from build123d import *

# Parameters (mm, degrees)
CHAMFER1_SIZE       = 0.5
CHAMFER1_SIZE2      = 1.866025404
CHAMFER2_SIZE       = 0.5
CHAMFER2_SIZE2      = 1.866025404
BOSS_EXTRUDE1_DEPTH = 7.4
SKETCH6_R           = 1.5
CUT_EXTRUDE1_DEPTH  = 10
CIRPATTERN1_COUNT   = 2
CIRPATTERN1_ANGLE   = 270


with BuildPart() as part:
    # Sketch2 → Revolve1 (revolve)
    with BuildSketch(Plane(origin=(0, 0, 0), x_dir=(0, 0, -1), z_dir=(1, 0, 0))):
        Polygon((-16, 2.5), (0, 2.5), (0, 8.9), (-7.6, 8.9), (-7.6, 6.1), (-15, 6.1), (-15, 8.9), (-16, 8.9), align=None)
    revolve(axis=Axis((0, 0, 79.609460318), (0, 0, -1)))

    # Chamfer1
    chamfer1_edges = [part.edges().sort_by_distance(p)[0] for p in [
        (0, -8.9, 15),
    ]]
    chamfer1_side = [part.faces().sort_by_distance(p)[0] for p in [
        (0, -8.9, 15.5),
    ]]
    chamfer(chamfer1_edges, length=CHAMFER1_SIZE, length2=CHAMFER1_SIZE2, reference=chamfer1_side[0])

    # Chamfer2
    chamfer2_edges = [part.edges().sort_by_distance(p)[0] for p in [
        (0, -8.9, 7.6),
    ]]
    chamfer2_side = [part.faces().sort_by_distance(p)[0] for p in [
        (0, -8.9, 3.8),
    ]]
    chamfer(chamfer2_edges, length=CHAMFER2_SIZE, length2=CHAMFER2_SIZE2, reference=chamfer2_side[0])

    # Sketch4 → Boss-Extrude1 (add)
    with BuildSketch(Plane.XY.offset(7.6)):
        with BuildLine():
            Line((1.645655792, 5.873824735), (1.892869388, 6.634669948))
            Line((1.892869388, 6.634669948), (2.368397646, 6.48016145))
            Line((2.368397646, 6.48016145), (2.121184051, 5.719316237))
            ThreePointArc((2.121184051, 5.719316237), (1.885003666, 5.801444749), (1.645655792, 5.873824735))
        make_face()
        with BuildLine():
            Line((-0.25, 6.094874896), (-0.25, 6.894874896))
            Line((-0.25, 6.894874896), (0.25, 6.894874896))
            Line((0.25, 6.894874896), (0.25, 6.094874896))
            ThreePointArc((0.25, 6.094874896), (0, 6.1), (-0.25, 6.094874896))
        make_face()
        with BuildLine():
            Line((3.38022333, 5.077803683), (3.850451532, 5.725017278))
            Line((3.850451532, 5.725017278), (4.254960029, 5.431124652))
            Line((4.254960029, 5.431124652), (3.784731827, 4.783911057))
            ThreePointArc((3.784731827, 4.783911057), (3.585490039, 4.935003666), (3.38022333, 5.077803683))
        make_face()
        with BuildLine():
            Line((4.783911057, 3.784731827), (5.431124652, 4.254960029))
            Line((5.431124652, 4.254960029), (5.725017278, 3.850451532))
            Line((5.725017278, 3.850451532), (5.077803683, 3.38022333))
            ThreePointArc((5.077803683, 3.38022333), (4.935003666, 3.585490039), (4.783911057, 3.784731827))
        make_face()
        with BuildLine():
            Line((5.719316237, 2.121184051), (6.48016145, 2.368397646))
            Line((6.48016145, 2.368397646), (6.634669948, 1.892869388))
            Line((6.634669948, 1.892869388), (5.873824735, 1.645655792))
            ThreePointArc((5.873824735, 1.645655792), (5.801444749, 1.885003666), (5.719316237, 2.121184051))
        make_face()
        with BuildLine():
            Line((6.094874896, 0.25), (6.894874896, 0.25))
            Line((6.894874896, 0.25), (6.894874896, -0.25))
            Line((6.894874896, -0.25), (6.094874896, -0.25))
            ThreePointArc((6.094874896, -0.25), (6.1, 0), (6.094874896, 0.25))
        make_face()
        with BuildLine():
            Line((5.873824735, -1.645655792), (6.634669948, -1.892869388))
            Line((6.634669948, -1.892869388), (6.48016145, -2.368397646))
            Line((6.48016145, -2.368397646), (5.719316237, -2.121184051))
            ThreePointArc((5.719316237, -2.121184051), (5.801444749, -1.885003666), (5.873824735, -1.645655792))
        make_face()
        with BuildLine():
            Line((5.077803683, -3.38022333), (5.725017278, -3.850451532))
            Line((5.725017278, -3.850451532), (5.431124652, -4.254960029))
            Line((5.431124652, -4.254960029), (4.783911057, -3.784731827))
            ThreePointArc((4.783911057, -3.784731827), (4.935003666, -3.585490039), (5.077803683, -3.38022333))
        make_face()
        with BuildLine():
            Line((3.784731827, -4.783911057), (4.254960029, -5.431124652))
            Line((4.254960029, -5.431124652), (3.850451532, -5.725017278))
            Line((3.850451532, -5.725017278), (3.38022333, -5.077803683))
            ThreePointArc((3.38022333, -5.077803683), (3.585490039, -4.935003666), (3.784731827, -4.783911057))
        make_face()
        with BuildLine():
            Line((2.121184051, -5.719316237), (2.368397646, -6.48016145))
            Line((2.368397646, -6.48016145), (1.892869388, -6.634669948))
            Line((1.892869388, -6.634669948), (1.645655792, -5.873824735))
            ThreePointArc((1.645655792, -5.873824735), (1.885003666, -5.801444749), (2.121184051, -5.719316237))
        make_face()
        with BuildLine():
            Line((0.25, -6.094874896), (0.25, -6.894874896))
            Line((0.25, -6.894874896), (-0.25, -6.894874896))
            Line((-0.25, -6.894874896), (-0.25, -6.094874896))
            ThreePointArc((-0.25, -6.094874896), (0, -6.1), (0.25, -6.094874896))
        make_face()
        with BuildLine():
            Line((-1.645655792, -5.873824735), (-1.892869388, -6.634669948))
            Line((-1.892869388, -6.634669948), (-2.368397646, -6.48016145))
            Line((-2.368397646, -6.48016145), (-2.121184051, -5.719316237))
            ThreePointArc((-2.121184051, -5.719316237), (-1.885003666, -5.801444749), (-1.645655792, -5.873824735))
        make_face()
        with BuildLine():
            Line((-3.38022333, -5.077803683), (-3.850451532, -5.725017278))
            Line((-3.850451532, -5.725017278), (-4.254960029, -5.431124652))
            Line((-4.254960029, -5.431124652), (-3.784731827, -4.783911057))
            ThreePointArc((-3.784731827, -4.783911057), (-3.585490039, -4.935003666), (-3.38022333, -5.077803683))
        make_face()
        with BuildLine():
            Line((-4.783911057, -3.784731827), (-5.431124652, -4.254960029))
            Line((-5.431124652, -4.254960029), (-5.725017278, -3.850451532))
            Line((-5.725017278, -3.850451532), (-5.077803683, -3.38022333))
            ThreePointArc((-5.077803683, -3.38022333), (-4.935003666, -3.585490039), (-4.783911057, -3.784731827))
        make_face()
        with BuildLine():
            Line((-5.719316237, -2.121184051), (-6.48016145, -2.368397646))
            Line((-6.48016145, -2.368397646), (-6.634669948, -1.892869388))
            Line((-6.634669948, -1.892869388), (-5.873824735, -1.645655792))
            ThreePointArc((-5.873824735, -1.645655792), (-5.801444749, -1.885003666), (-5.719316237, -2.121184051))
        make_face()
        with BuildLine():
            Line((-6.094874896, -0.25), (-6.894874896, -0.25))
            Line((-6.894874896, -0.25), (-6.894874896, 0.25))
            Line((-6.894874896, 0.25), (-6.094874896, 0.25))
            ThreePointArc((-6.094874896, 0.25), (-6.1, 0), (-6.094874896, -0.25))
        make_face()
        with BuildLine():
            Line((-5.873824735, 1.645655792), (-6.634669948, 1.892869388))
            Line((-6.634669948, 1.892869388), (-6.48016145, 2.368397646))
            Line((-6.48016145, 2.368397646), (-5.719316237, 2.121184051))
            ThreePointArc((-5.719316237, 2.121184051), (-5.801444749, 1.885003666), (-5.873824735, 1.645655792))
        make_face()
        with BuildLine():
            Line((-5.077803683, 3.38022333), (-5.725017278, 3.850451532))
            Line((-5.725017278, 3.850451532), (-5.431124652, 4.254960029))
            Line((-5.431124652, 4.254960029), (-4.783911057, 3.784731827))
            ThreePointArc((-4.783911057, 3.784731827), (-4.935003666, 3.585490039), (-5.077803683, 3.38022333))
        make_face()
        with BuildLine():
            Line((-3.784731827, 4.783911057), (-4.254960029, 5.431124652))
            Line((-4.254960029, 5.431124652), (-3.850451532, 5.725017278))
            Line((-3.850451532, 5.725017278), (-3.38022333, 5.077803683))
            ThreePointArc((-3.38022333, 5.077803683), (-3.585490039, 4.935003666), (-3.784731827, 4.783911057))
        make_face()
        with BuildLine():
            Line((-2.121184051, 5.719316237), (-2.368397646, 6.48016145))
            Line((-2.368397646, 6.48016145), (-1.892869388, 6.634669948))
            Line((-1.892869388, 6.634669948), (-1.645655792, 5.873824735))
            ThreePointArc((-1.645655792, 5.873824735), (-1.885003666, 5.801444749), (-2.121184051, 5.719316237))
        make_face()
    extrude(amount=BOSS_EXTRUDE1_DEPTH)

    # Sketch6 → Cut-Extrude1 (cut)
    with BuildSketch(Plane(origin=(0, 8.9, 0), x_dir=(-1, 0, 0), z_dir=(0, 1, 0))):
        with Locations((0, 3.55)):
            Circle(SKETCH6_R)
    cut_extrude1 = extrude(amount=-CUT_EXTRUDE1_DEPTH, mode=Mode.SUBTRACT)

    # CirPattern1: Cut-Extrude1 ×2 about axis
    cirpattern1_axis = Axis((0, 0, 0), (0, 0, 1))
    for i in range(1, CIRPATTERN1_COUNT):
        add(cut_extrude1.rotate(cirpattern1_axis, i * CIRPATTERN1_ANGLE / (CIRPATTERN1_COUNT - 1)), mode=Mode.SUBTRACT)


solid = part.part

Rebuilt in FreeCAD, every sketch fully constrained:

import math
import FreeCAD as App
import Part
import Sketcher

V = App.Vector
Q = App.Units.Quantity


def edges_at(feature, points):
    """Names of the edges that pass closest to the given points."""
    edges = feature.Shape.Edges
    near = lambda p: min(range(len(edges)), key=lambda i: edges[i].distToShape(Part.Vertex(*p))[0])
    return sorted({f"Edge{near(p) + 1}" for p in points})

doc = App.newDocument("Part")
body = doc.addObject("PartDesign::Body", "Body")

# Sketch on YZ plane
sketch1 = doc.addObject("Sketcher::SketchObject", "Sketch")
body.addObject(sketch1)
sketch1.AttachmentSupport = (doc.YZ_Plane, [""])
sketch1.MapMode = "FlatFace"
sketch1.addGeometry(Part.LineSegment(V(2.5, 16, 0), V(2.5, 0, 0)), False)
sketch1.addGeometry(Part.LineSegment(V(2.5, 0, 0), V(8.9, 0, 0)), False)
sketch1.addGeometry(Part.LineSegment(V(8.9, 0, 0), V(8.9, 7.6, 0)), False)
sketch1.addGeometry(Part.LineSegment(V(8.9, 7.6, 0), V(6.1, 7.6, 0)), False)
sketch1.addGeometry(Part.LineSegment(V(6.1, 7.6, 0), V(6.1, 15, 0)), False)
sketch1.addGeometry(Part.LineSegment(V(6.1, 15, 0), V(8.9, 15, 0)), False)
sketch1.addGeometry(Part.LineSegment(V(8.9, 15, 0), V(8.9, 16, 0)), False)
sketch1.addGeometry(Part.LineSegment(V(8.9, 16, 0), V(2.5, 16, 0)), False)
sketch1.addConstraint(Sketcher.Constraint("Coincident", 0, 2, 1, 1))
sketch1.addConstraint(Sketcher.Constraint("Coincident", 1, 2, 2, 1))
sketch1.addConstraint(Sketcher.Constraint("Coincident", 2, 2, 3, 1))
sketch1.addConstraint(Sketcher.Constraint("Coincident", 3, 2, 4, 1))
sketch1.addConstraint(Sketcher.Constraint("Coincident", 4, 2, 5, 1))
sketch1.addConstraint(Sketcher.Constraint("Coincident", 5, 2, 6, 1))
sketch1.addConstraint(Sketcher.Constraint("Coincident", 6, 2, 7, 1))
sketch1.addConstraint(Sketcher.Constraint("Coincident", 7, 2, 0, 1))
sketch1.addConstraint(Sketcher.Constraint("Vertical", 0))
sketch1.addConstraint(Sketcher.Constraint("Horizontal", 1))
sketch1.addConstraint(Sketcher.Constraint("Vertical", 2))
sketch1.addConstraint(Sketcher.Constraint("Horizontal", 3))
sketch1.addConstraint(Sketcher.Constraint("Vertical", 4))
sketch1.addConstraint(Sketcher.Constraint("Horizontal", 5))
sketch1.addConstraint(Sketcher.Constraint("Vertical", 6))
sketch1.addConstraint(Sketcher.Constraint("Horizontal", 7))
sketch1.addConstraint(Sketcher.Constraint("PointOnObject", 0, 2, -1))
sketch1.addConstraint(Sketcher.Constraint("Vertical", 2, 2, 5, 2))
sketch1.addConstraint(Sketcher.Constraint("DistanceY", 0, 2, 0, 1, 16.0))
sketch1.addConstraint(Sketcher.Constraint("DistanceY", 6, 1, 6, 2, 1.0))
sketch1.addConstraint(Sketcher.Constraint("DistanceX", 1, 1, 1, 2, 6.4))
sketch1.addConstraint(Sketcher.Constraint("DistanceX", 3, 2, 3, 1, 2.8))
sketch1.addConstraint(Sketcher.Constraint("DistanceY", 2, 1, 2, 2, 7.6))
sketch1.addConstraint(Sketcher.Constraint("DistanceX", -1, 1, 0, 2, 2.5))
revolution = doc.addObject("PartDesign::Revolution", "Revolution")
body.addObject(revolution)
revolution.Profile = sketch1
revolution.ReferenceAxis = (sketch1, ["V_Axis"])
revolution.Angle = 360
doc.recompute()

chamfer = doc.addObject("PartDesign::Chamfer", "Chamfer")
body.addObject(chamfer)
chamfer.Base = (revolution, edges_at(revolution, [(0, -8.9, 15)]))
chamfer.ChamferType = "Two distances"
chamfer.Size = 0.5
chamfer.Size2 = 1.866025
chamfer.FlipDirection = True
doc.recompute()

chamfer2 = doc.addObject("PartDesign::Chamfer", "Chamfer001")
body.addObject(chamfer2)
chamfer2.Base = (chamfer, edges_at(chamfer, [(0, -8.9, 7.6)]))
chamfer2.ChamferType = "Two distances"
chamfer2.Size = 0.5
chamfer2.Size2 = 1.866025
chamfer2.FlipDirection = True

# Sketch on XY plane
sketch2 = doc.addObject("Sketcher::SketchObject", "Sketch001")
body.addObject(sketch2)
sketch2.AttachmentSupport = (doc.XY_Plane, [""])
sketch2.MapMode = "FlatFace"
sketch2.AttachmentOffset = App.Placement(V(0, 0, 7.6), App.Rotation())
sketch2.addGeometry(Part.LineSegment(V(1.89, 6.63, 0), V(1.65, 5.87, 0)), False)
sketch2.addGeometry(Part.ArcOfCircle(Part.Circle(V(0, 0, 0), V(0, 0, 1), 6.1), math.radians(69.65), math.radians(74.35)), False)
sketch2.addGeometry(Part.LineSegment(V(2.12, 5.72, 0), V(2.37, 6.48, 0)), False)
sketch2.addGeometry(Part.LineSegment(V(2.37, 6.48, 0), V(1.89, 6.63, 0)), False)
sketch2.addGeometry(Part.LineSegment(V(-0.25, 6.89, 0), V(-0.25, 6.09, 0)), False)
sketch2.addGeometry(Part.ArcOfCircle(Part.Circle(V(0, 0, 0), V(0, 0, 1), 6.1), math.radians(87.65), math.radians(92.35)), False)
sketch2.addGeometry(Part.LineSegment(V(0.25, 6.09, 0), V(0.25, 6.89, 0)), False)
sketch2.addGeometry(Part.LineSegment(V(0.25, 6.89, 0), V(-0.25, 6.89, 0)), False)
sketch2.addGeometry(Part.LineSegment(V(3.85, 5.73, 0), V(3.38, 5.08, 0)), False)
sketch2.addGeometry(Part.ArcOfCircle(Part.Circle(V(0, 0, 0), V(0, 0, 1), 6.1), math.radians(51.65), math.radians(56.35)), False)
sketch2.addGeometry(Part.LineSegment(V(3.78, 4.78, 0), V(4.25, 5.43, 0)), False)
sketch2.addGeometry(Part.LineSegment(V(4.25, 5.43, 0), V(3.85, 5.73, 0)), False)
sketch2.addGeometry(Part.LineSegment(V(5.43, 4.25, 0), V(4.78, 3.78, 0)), False)
sketch2.addGeometry(Part.ArcOfCircle(Part.Circle(V(0, 0, 0), V(0, 0, 1), 6.1), math.radians(33.65), math.radians(38.35)), False)
sketch2.addGeometry(Part.LineSegment(V(5.08, 3.38, 0), V(5.73, 3.85, 0)), False)
sketch2.addGeometry(Part.LineSegment(V(5.73, 3.85, 0), V(5.43, 4.25, 0)), False)
sketch2.addGeometry(Part.LineSegment(V(6.48, 2.37, 0), V(5.72, 2.12, 0)), False)
sketch2.addGeometry(Part.ArcOfCircle(Part.Circle(V(0, 0, 0), V(0, 0, 1), 6.1), math.radians(15.65), math.radians(20.35)), False)
sketch2.addGeometry(Part.LineSegment(V(5.87, 1.65, 0), V(6.63, 1.89, 0)), False)
sketch2.addGeometry(Part.LineSegment(V(6.63, 1.89, 0), V(6.48, 2.37, 0)), False)
sketch2.addGeometry(Part.LineSegment(V(6.89, 0.25, 0), V(6.09, 0.25, 0)), False)
sketch2.addGeometry(Part.ArcOfCircle(Part.Circle(V(0, 0, 0), V(0, 0, 1), 6.1), math.radians(-2.35), math.radians(2.35)), False)
sketch2.addGeometry(Part.LineSegment(V(6.09, -0.25, 0), V(6.89, -0.25, 0)), False)
sketch2.addGeometry(Part.LineSegment(V(6.89, -0.25, 0), V(6.89, 0.25, 0)), False)
sketch2.addGeometry(Part.LineSegment(V(6.63, -1.89, 0), V(5.87, -1.65, 0)), False)
sketch2.addGeometry(Part.ArcOfCircle(Part.Circle(V(0, 0, 0), V(0, 0, 1), 6.1), math.radians(-20.35), math.radians(-15.65)), False)
sketch2.addGeometry(Part.LineSegment(V(5.72, -2.12, 0), V(6.48, -2.37, 0)), False)
sketch2.addGeometry(Part.LineSegment(V(6.48, -2.37, 0), V(6.63, -1.89, 0)), False)
sketch2.addGeometry(Part.LineSegment(V(5.73, -3.85, 0), V(5.08, -3.38, 0)), False)
sketch2.addGeometry(Part.ArcOfCircle(Part.Circle(V(0, 0, 0), V(0, 0, 1), 6.1), math.radians(-38.35), math.radians(-33.65)), False)
sketch2.addGeometry(Part.LineSegment(V(4.78, -3.78, 0), V(5.43, -4.25, 0)), False)
sketch2.addGeometry(Part.LineSegment(V(5.43, -4.25, 0), V(5.73, -3.85, 0)), False)
sketch2.addGeometry(Part.LineSegment(V(4.25, -5.43, 0), V(3.78, -4.78, 0)), False)
sketch2.addGeometry(Part.ArcOfCircle(Part.Circle(V(0, 0, 0), V(0, 0, 1), 6.1), math.radians(-56.35), math.radians(-51.65)), False)
sketch2.addGeometry(Part.LineSegment(V(3.38, -5.08, 0), V(3.85, -5.73, 0)), False)
sketch2.addGeometry(Part.LineSegment(V(3.85, -5.73, 0), V(4.25, -5.43, 0)), False)
sketch2.addGeometry(Part.LineSegment(V(2.37, -6.48, 0), V(2.12, -5.72, 0)), False)
sketch2.addGeometry(Part.ArcOfCircle(Part.Circle(V(0, 0, 0), V(0, 0, 1), 6.1), math.radians(-74.35), math.radians(-69.65)), False)
sketch2.addGeometry(Part.LineSegment(V(1.65, -5.87, 0), V(1.89, -6.63, 0)), False)
sketch2.addGeometry(Part.LineSegment(V(1.89, -6.63, 0), V(2.37, -6.48, 0)), False)
sketch2.addGeometry(Part.LineSegment(V(0.25, -6.89, 0), V(0.25, -6.09, 0)), False)
sketch2.addGeometry(Part.ArcOfCircle(Part.Circle(V(0, 0, 0), V(0, 0, 1), 6.1), math.radians(-92.35), math.radians(-87.65)), False)
sketch2.addGeometry(Part.LineSegment(V(-0.25, -6.09, 0), V(-0.25, -6.89, 0)), False)
sketch2.addGeometry(Part.LineSegment(V(-0.25, -6.89, 0), V(0.25, -6.89, 0)), False)
sketch2.addGeometry(Part.LineSegment(V(-1.89, -6.63, 0), V(-1.65, -5.87, 0)), False)
sketch2.addGeometry(Part.ArcOfCircle(Part.Circle(V(0, 0, 0), V(0, 0, 1), 6.1), math.radians(-110.35), math.radians(-105.65)), False)
sketch2.addGeometry(Part.LineSegment(V(-2.12, -5.72, 0), V(-2.37, -6.48, 0)), False)
sketch2.addGeometry(Part.LineSegment(V(-2.37, -6.48, 0), V(-1.89, -6.63, 0)), False)
sketch2.addGeometry(Part.LineSegment(V(-3.85, -5.73, 0), V(-3.38, -5.08, 0)), False)
sketch2.addGeometry(Part.ArcOfCircle(Part.Circle(V(0, 0, 0), V(0, 0, 1), 6.1), math.radians(-128.35), math.radians(-123.65)), False)
sketch2.addGeometry(Part.LineSegment(V(-3.78, -4.78, 0), V(-4.25, -5.43, 0)), False)
sketch2.addGeometry(Part.LineSegment(V(-4.25, -5.43, 0), V(-3.85, -5.73, 0)), False)
sketch2.addGeometry(Part.LineSegment(V(-5.43, -4.25, 0), V(-4.78, -3.78, 0)), False)
sketch2.addGeometry(Part.ArcOfCircle(Part.Circle(V(0, 0, 0), V(0, 0, 1), 6.1), math.radians(-146.35), math.radians(-141.65)), False)
sketch2.addGeometry(Part.LineSegment(V(-5.08, -3.38, 0), V(-5.73, -3.85, 0)), False)
sketch2.addGeometry(Part.LineSegment(V(-5.73, -3.85, 0), V(-5.43, -4.25, 0)), False)
sketch2.addGeometry(Part.LineSegment(V(-6.48, -2.37, 0), V(-5.72, -2.12, 0)), False)
sketch2.addGeometry(Part.ArcOfCircle(Part.Circle(V(0, 0, 0), V(0, 0, 1), 6.1), math.radians(-164.35), math.radians(-159.65)), False)
sketch2.addGeometry(Part.LineSegment(V(-5.87, -1.65, 0), V(-6.63, -1.89, 0)), False)
sketch2.addGeometry(Part.LineSegment(V(-6.63, -1.89, 0), V(-6.48, -2.37, 0)), False)
sketch2.addGeometry(Part.LineSegment(V(-6.89, -0.25, 0), V(-6.09, -0.25, 0)), False)
sketch2.addGeometry(Part.ArcOfCircle(Part.Circle(V(0, 0, 0), V(0, 0, 1), 6.1), math.radians(177.65), math.radians(182.35)), False)
sketch2.addGeometry(Part.LineSegment(V(-6.09, 0.25, 0), V(-6.89, 0.25, 0)), False)
sketch2.addGeometry(Part.LineSegment(V(-6.89, 0.25, 0), V(-6.89, -0.25, 0)), False)
sketch2.addGeometry(Part.LineSegment(V(-6.63, 1.89, 0), V(-5.87, 1.65, 0)), False)
sketch2.addGeometry(Part.ArcOfCircle(Part.Circle(V(0, 0, 0), V(0, 0, 1), 6.1), math.radians(159.65), math.radians(164.35)), False)
sketch2.addGeometry(Part.LineSegment(V(-5.72, 2.12, 0), V(-6.48, 2.37, 0)), False)
sketch2.addGeometry(Part.LineSegment(V(-6.48, 2.37, 0), V(-6.63, 1.89, 0)), False)
sketch2.addGeometry(Part.LineSegment(V(-5.73, 3.85, 0), V(-5.08, 3.38, 0)), False)
sketch2.addGeometry(Part.ArcOfCircle(Part.Circle(V(0, 0, 0), V(0, 0, 1), 6.1), math.radians(141.65), math.radians(146.35)), False)
sketch2.addGeometry(Part.LineSegment(V(-4.78, 3.78, 0), V(-5.43, 4.25, 0)), False)
sketch2.addGeometry(Part.LineSegment(V(-5.43, 4.25, 0), V(-5.73, 3.85, 0)), False)
sketch2.addGeometry(Part.LineSegment(V(-4.25, 5.43, 0), V(-3.78, 4.78, 0)), False)
sketch2.addGeometry(Part.ArcOfCircle(Part.Circle(V(0, 0, 0), V(0, 0, 1), 6.1), math.radians(123.65), math.radians(128.35)), False)
sketch2.addGeometry(Part.LineSegment(V(-3.38, 5.08, 0), V(-3.85, 5.73, 0)), False)
sketch2.addGeometry(Part.LineSegment(V(-3.85, 5.73, 0), V(-4.25, 5.43, 0)), False)
sketch2.addGeometry(Part.LineSegment(V(-2.37, 6.48, 0), V(-2.12, 5.72, 0)), False)
sketch2.addGeometry(Part.ArcOfCircle(Part.Circle(V(0, 0, 0), V(0, 0, 1), 6.1), math.radians(105.65), math.radians(110.35)), False)
sketch2.addGeometry(Part.LineSegment(V(-1.65, 5.87, 0), V(-1.89, 6.63, 0)), False)
sketch2.addGeometry(Part.LineSegment(V(-1.89, 6.63, 0), V(-2.37, 6.48, 0)), False)
sketch2.addConstraint(Sketcher.Constraint("Coincident", 0, 2, 1, 2))
sketch2.addConstraint(Sketcher.Constraint("Coincident", 1, 1, 2, 1))
sketch2.addConstraint(Sketcher.Constraint("Coincident", 2, 2, 3, 1))
sketch2.addConstraint(Sketcher.Constraint("Coincident", 3, 2, 0, 1))
sketch2.addConstraint(Sketcher.Constraint("Coincident", 4, 2, 5, 2))
sketch2.addConstraint(Sketcher.Constraint("Coincident", 5, 1, 6, 1))
sketch2.addConstraint(Sketcher.Constraint("Coincident", 6, 2, 7, 1))
sketch2.addConstraint(Sketcher.Constraint("Coincident", 7, 2, 4, 1))
sketch2.addConstraint(Sketcher.Constraint("Coincident", 8, 2, 9, 2))
sketch2.addConstraint(Sketcher.Constraint("Coincident", 9, 1, 10, 1))
sketch2.addConstraint(Sketcher.Constraint("Coincident", 10, 2, 11, 1))
sketch2.addConstraint(Sketcher.Constraint("Coincident", 11, 2, 8, 1))
sketch2.addConstraint(Sketcher.Constraint("Coincident", 12, 2, 13, 2))
sketch2.addConstraint(Sketcher.Constraint("Coincident", 13, 1, 14, 1))
sketch2.addConstraint(Sketcher.Constraint("Coincident", 14, 2, 15, 1))
sketch2.addConstraint(Sketcher.Constraint("Coincident", 15, 2, 12, 1))
sketch2.addConstraint(Sketcher.Constraint("Coincident", 16, 2, 17, 2))
sketch2.addConstraint(Sketcher.Constraint("Coincident", 17, 1, 18, 1))
sketch2.addConstraint(Sketcher.Constraint("Coincident", 18, 2, 19, 1))
sketch2.addConstraint(Sketcher.Constraint("Coincident", 19, 2, 16, 1))
sketch2.addConstraint(Sketcher.Constraint("Coincident", 20, 2, 21, 2))
sketch2.addConstraint(Sketcher.Constraint("Coincident", 21, 1, 22, 1))
sketch2.addConstraint(Sketcher.Constraint("Coincident", 22, 2, 23, 1))
sketch2.addConstraint(Sketcher.Constraint("Coincident", 23, 2, 20, 1))
sketch2.addConstraint(Sketcher.Constraint("Coincident", 24, 2, 25, 2))
sketch2.addConstraint(Sketcher.Constraint("Coincident", 25, 1, 26, 1))
sketch2.addConstraint(Sketcher.Constraint("Coincident", 26, 2, 27, 1))
sketch2.addConstraint(Sketcher.Constraint("Coincident", 27, 2, 24, 1))
sketch2.addConstraint(Sketcher.Constraint("Coincident", 28, 2, 29, 2))
sketch2.addConstraint(Sketcher.Constraint("Coincident", 29, 1, 30, 1))
sketch2.addConstraint(Sketcher.Constraint("Coincident", 30, 2, 31, 1))
sketch2.addConstraint(Sketcher.Constraint("Coincident", 31, 2, 28, 1))
sketch2.addConstraint(Sketcher.Constraint("Coincident", 32, 2, 33, 2))
sketch2.addConstraint(Sketcher.Constraint("Coincident", 33, 1, 34, 1))
sketch2.addConstraint(Sketcher.Constraint("Coincident", 34, 2, 35, 1))
sketch2.addConstraint(Sketcher.Constraint("Coincident", 35, 2, 32, 1))
sketch2.addConstraint(Sketcher.Constraint("Coincident", 36, 2, 37, 2))
sketch2.addConstraint(Sketcher.Constraint("Coincident", 37, 1, 38, 1))
sketch2.addConstraint(Sketcher.Constraint("Coincident", 38, 2, 39, 1))
sketch2.addConstraint(Sketcher.Constraint("Coincident", 39, 2, 36, 1))
sketch2.addConstraint(Sketcher.Constraint("Coincident", 40, 2, 41, 2))
sketch2.addConstraint(Sketcher.Constraint("Coincident", 41, 1, 42, 1))
sketch2.addConstraint(Sketcher.Constraint("Coincident", 42, 2, 43, 1))
sketch2.addConstraint(Sketcher.Constraint("Coincident", 43, 2, 40, 1))
sketch2.addConstraint(Sketcher.Constraint("Coincident", 44, 2, 45, 2))
sketch2.addConstraint(Sketcher.Constraint("Coincident", 45, 1, 46, 1))
sketch2.addConstraint(Sketcher.Constraint("Coincident", 46, 2, 47, 1))
sketch2.addConstraint(Sketcher.Constraint("Coincident", 47, 2, 44, 1))
sketch2.addConstraint(Sketcher.Constraint("Coincident", 48, 2, 49, 2))
sketch2.addConstraint(Sketcher.Constraint("Coincident", 49, 1, 50, 1))
sketch2.addConstraint(Sketcher.Constraint("Coincident", 50, 2, 51, 1))
sketch2.addConstraint(Sketcher.Constraint("Coincident", 51, 2, 48, 1))
sketch2.addConstraint(Sketcher.Constraint("Coincident", 52, 2, 53, 2))
sketch2.addConstraint(Sketcher.Constraint("Coincident", 53, 1, 54, 1))
sketch2.addConstraint(Sketcher.Constraint("Coincident", 54, 2, 55, 1))
sketch2.addConstraint(Sketcher.Constraint("Coincident", 55, 2, 52, 1))
sketch2.addConstraint(Sketcher.Constraint("Coincident", 56, 2, 57, 2))
sketch2.addConstraint(Sketcher.Constraint("Coincident", 57, 1, 58, 1))
sketch2.addConstraint(Sketcher.Constraint("Coincident", 58, 2, 59, 1))
sketch2.addConstraint(Sketcher.Constraint("Coincident", 59, 2, 56, 1))
sketch2.addConstraint(Sketcher.Constraint("Coincident", 60, 2, 61, 2))
sketch2.addConstraint(Sketcher.Constraint("Coincident", 61, 1, 62, 1))
sketch2.addConstraint(Sketcher.Constraint("Coincident", 62, 2, 63, 1))
sketch2.addConstraint(Sketcher.Constraint("Coincident", 63, 2, 60, 1))
sketch2.addConstraint(Sketcher.Constraint("Coincident", 64, 2, 65, 2))
sketch2.addConstraint(Sketcher.Constraint("Coincident", 65, 1, 66, 1))
sketch2.addConstraint(Sketcher.Constraint("Coincident", 66, 2, 67, 1))
sketch2.addConstraint(Sketcher.Constraint("Coincident", 67, 2, 64, 1))
sketch2.addConstraint(Sketcher.Constraint("Coincident", 68, 2, 69, 2))
sketch2.addConstraint(Sketcher.Constraint("Coincident", 69, 1, 70, 1))
sketch2.addConstraint(Sketcher.Constraint("Coincident", 70, 2, 71, 1))
sketch2.addConstraint(Sketcher.Constraint("Coincident", 71, 2, 68, 1))
sketch2.addConstraint(Sketcher.Constraint("Coincident", 72, 2, 73, 2))
sketch2.addConstraint(Sketcher.Constraint("Coincident", 73, 1, 74, 1))
sketch2.addConstraint(Sketcher.Constraint("Coincident", 74, 2, 75, 1))
sketch2.addConstraint(Sketcher.Constraint("Coincident", 75, 2, 72, 1))
sketch2.addConstraint(Sketcher.Constraint("Coincident", 76, 2, 77, 2))
sketch2.addConstraint(Sketcher.Constraint("Coincident", 77, 1, 78, 1))
sketch2.addConstraint(Sketcher.Constraint("Coincident", 78, 2, 79, 1))
sketch2.addConstraint(Sketcher.Constraint("Coincident", 79, 2, 76, 1))
sketch2.addConstraint(Sketcher.Constraint("Vertical", 4))
sketch2.addConstraint(Sketcher.Constraint("Vertical", 6))
sketch2.addConstraint(Sketcher.Constraint("Horizontal", 7))
sketch2.addConstraint(Sketcher.Constraint("Horizontal", 20))
sketch2.addConstraint(Sketcher.Constraint("Horizontal", 22))
sketch2.addConstraint(Sketcher.Constraint("Vertical", 23))
sketch2.addConstraint(Sketcher.Constraint("Vertical", 40))
sketch2.addConstraint(Sketcher.Constraint("Vertical", 42))
sketch2.addConstraint(Sketcher.Constraint("Horizontal", 43))
sketch2.addConstraint(Sketcher.Constraint("Horizontal", 60))
sketch2.addConstraint(Sketcher.Constraint("Horizontal", 62))
sketch2.addConstraint(Sketcher.Constraint("Vertical", 63))
sketch2.addConstraint(Sketcher.Constraint("Coincident", 1, 3, -1, 1))
sketch2.addConstraint(Sketcher.Constraint("Coincident", 5, 3, -1, 1))
sketch2.addConstraint(Sketcher.Constraint("Coincident", 9, 3, -1, 1))
sketch2.addConstraint(Sketcher.Constraint("Coincident", 13, 3, -1, 1))
sketch2.addConstraint(Sketcher.Constraint("Coincident", 17, 3, -1, 1))
sketch2.addConstraint(Sketcher.Constraint("Coincident", 21, 3, -1, 1))
sketch2.addConstraint(Sketcher.Constraint("Coincident", 25, 3, -1, 1))
sketch2.addConstraint(Sketcher.Constraint("Coincident", 29, 3, -1, 1))
sketch2.addConstraint(Sketcher.Constraint("Coincident", 33, 3, -1, 1))
sketch2.addConstraint(Sketcher.Constraint("Coincident", 37, 3, -1, 1))
sketch2.addConstraint(Sketcher.Constraint("Coincident", 41, 3, -1, 1))
sketch2.addConstraint(Sketcher.Constraint("Coincident", 45, 3, -1, 1))
sketch2.addConstraint(Sketcher.Constraint("Coincident", 49, 3, -1, 1))
sketch2.addConstraint(Sketcher.Constraint("Coincident", 53, 3, -1, 1))
sketch2.addConstraint(Sketcher.Constraint("Coincident", 57, 3, -1, 1))
sketch2.addConstraint(Sketcher.Constraint("Coincident", 61, 3, -1, 1))
sketch2.addConstraint(Sketcher.Constraint("Coincident", 65, 3, -1, 1))
sketch2.addConstraint(Sketcher.Constraint("Coincident", 69, 3, -1, 1))
sketch2.addConstraint(Sketcher.Constraint("Coincident", 73, 3, -1, 1))
sketch2.addConstraint(Sketcher.Constraint("Coincident", 77, 3, -1, 1))
sketch2.addConstraint(Sketcher.Constraint("Equal", 1, 5))
sketch2.addConstraint(Sketcher.Constraint("Equal", 5, 9))
sketch2.addConstraint(Sketcher.Constraint("Equal", 9, 13))
sketch2.addConstraint(Sketcher.Constraint("Equal", 13, 17))
sketch2.addConstraint(Sketcher.Constraint("Equal", 17, 21))
sketch2.addConstraint(Sketcher.Constraint("Equal", 21, 25))
sketch2.addConstraint(Sketcher.Constraint("Equal", 25, 29))
sketch2.addConstraint(Sketcher.Constraint("Equal", 29, 33))
sketch2.addConstraint(Sketcher.Constraint("Equal", 33, 37))
sketch2.addConstraint(Sketcher.Constraint("Equal", 37, 41))
sketch2.addConstraint(Sketcher.Constraint("Equal", 41, 45))
sketch2.addConstraint(Sketcher.Constraint("Equal", 45, 49))
sketch2.addConstraint(Sketcher.Constraint("Equal", 49, 53))
sketch2.addConstraint(Sketcher.Constraint("Equal", 53, 57))
sketch2.addConstraint(Sketcher.Constraint("Equal", 57, 61))
sketch2.addConstraint(Sketcher.Constraint("Equal", 61, 65))
sketch2.addConstraint(Sketcher.Constraint("Equal", 65, 69))
sketch2.addConstraint(Sketcher.Constraint("Equal", 69, 73))
sketch2.addConstraint(Sketcher.Constraint("Equal", 73, 77))
sketch2.addConstraint(Sketcher.Constraint("Symmetric", 6, 2, 42, 2, -1, 1))
sketch2.addConstraint(Sketcher.Constraint("Symmetric", 2, 2, 46, 2, -1, 1))
sketch2.addConstraint(Sketcher.Constraint("Symmetric", 3, 2, 47, 2, -1, 1))
sketch2.addConstraint(Sketcher.Constraint("Symmetric", 10, 2, 50, 2, -1, 1))
sketch2.addConstraint(Sketcher.Constraint("Symmetric", 11, 2, 51, 2, -1, 1))
sketch2.addConstraint(Sketcher.Constraint("Symmetric", 14, 2, 54, 2, -1, 1))
sketch2.addConstraint(Sketcher.Constraint("Symmetric", 15, 2, 55, 2, -1, 1))
sketch2.addConstraint(Sketcher.Constraint("Symmetric", 18, 2, 58, 2, -1, 1))
sketch2.addConstraint(Sketcher.Constraint("Symmetric", 19, 2, 59, 2, -1, 1))
sketch2.addConstraint(Sketcher.Constraint("Symmetric", 22, 2, 62, 2, -1, 1))
sketch2.addConstraint(Sketcher.Constraint("Symmetric", 26, 2, 66, 2, -1, 1))
sketch2.addConstraint(Sketcher.Constraint("Symmetric", 27, 2, 67, 2, -1, 1))
sketch2.addConstraint(Sketcher.Constraint("Symmetric", 30, 2, 70, 2, -1, 1))
sketch2.addConstraint(Sketcher.Constraint("Symmetric", 31, 2, 71, 2, -1, 1))
sketch2.addConstraint(Sketcher.Constraint("Symmetric", 34, 2, 74, 2, -1, 1))
sketch2.addConstraint(Sketcher.Constraint("Symmetric", 35, 2, 75, 2, -1, 1))
sketch2.addConstraint(Sketcher.Constraint("Symmetric", 38, 2, 78, 2, -1, 1))
sketch2.addConstraint(Sketcher.Constraint("Symmetric", 39, 2, 79, 2, -1, 1))
sketch2.addConstraint(Sketcher.Constraint("Symmetric", 39, 2, 46, 2, -2))
sketch2.addConstraint(Sketcher.Constraint("Symmetric", 38, 2, 47, 2, -2))
sketch2.addConstraint(Sketcher.Constraint("Symmetric", 35, 2, 50, 2, -2))
sketch2.addConstraint(Sketcher.Constraint("Symmetric", 34, 2, 51, 2, -2))
sketch2.addConstraint(Sketcher.Constraint("Symmetric", 31, 2, 54, 2, -2))
sketch2.addConstraint(Sketcher.Constraint("Symmetric", 30, 2, 55, 2, -2))
sketch2.addConstraint(Sketcher.Constraint("Symmetric", 27, 2, 58, 2, -2))
sketch2.addConstraint(Sketcher.Constraint("Symmetric", 26, 2, 59, 2, -2))
sketch2.addConstraint(Sketcher.Constraint("Parallel", 0, 2))
sketch2.addConstraint(Sketcher.Constraint("Perpendicular", 2, 3))
sketch2.addConstraint(Sketcher.Constraint("Parallel", 8, 10))
sketch2.addConstraint(Sketcher.Constraint("Perpendicular", 10, 11))
sketch2.addConstraint(Sketcher.Constraint("Parallel", 12, 14))
sketch2.addConstraint(Sketcher.Constraint("Perpendicular", 14, 15))
sketch2.addConstraint(Sketcher.Constraint("Parallel", 16, 18))
sketch2.addConstraint(Sketcher.Constraint("Perpendicular", 18, 19))
sketch2.addConstraint(Sketcher.Constraint("Parallel", 3, 24))
sketch2.addConstraint(Sketcher.Constraint("Parallel", 24, 26))
sketch2.addConstraint(Sketcher.Constraint("Perpendicular", 26, 27))
sketch2.addConstraint(Sketcher.Constraint("Parallel", 11, 28))
sketch2.addConstraint(Sketcher.Constraint("Parallel", 28, 30))
sketch2.addConstraint(Sketcher.Constraint("Perpendicular", 30, 31))
sketch2.addConstraint(Sketcher.Constraint("Parallel", 15, 32))
sketch2.addConstraint(Sketcher.Constraint("Parallel", 32, 34))
sketch2.addConstraint(Sketcher.Constraint("Parallel", 19, 36))
sketch2.addConstraint(Sketcher.Constraint("Parallel", 36, 38))
sketch2.addConstraint(Sketcher.Constraint("Parallel", 27, 44))
sketch2.addConstraint(Sketcher.Constraint("Parallel", 44, 46))
sketch2.addConstraint(Sketcher.Constraint("Parallel", 31, 48))
sketch2.addConstraint(Sketcher.Constraint("Parallel", 48, 50))
sketch2.addConstraint(Sketcher.Constraint("Parallel", 35, 52))
sketch2.addConstraint(Sketcher.Constraint("Parallel", 52, 54))
sketch2.addConstraint(Sketcher.Constraint("Parallel", 39, 56))
sketch2.addConstraint(Sketcher.Constraint("Parallel", 56, 58))
sketch2.addConstraint(Sketcher.Constraint("Parallel", 47, 64))
sketch2.addConstraint(Sketcher.Constraint("Parallel", 64, 66))
sketch2.addConstraint(Sketcher.Constraint("Parallel", 51, 68))
sketch2.addConstraint(Sketcher.Constraint("Parallel", 68, 70))
sketch2.addConstraint(Sketcher.Constraint("Parallel", 55, 72))
sketch2.addConstraint(Sketcher.Constraint("Parallel", 72, 74))
sketch2.addConstraint(Sketcher.Constraint("Parallel", 59, 76))
sketch2.addConstraint(Sketcher.Constraint("Parallel", 76, 78))
sketch2.addConstraint(Sketcher.Constraint("Horizontal", 4, 2, 5, 1))
sketch2.addConstraint(Sketcher.Constraint("Horizontal", 40, 2, 41, 1))
sketch2.addConstraint(Sketcher.Constraint("Horizontal", 22, 2, 60, 2))
sketch2.addConstraint(Sketcher.Constraint("Horizontal", 23, 2, 61, 1))
sketch2.addConstraint(Sketcher.Constraint("Equal", 62, 4))
sketch2.addConstraint(Sketcher.Constraint("Equal", 43, 23))
sketch2.addConstraint(Sketcher.Constraint("Equal", 0, 2))
sketch2.addConstraint(Sketcher.Constraint("Equal", 2, 8))
sketch2.addConstraint(Sketcher.Constraint("Equal", 8, 10))
sketch2.addConstraint(Sketcher.Constraint("Equal", 3, 11))
sketch2.addConstraint(Sketcher.Constraint("Equal", 10, 12))
sketch2.addConstraint(Sketcher.Constraint("Equal", 12, 14))
sketch2.addConstraint(Sketcher.Constraint("Equal", 11, 15))
sketch2.addConstraint(Sketcher.Constraint("Equal", 14, 16))
sketch2.addConstraint(Sketcher.Constraint("Equal", 16, 18))
sketch2.addConstraint(Sketcher.Constraint("Equal", 15, 19))
sketch2.addConstraint(Sketcher.Constraint("Radius", 1, 6.1))
sketch2.addConstraint(Sketcher.Constraint("Angle", 0, Q("-108 deg")))
sketch2.addConstraint(Sketcher.Constraint("Angle", 8, Q("-126 deg")))
sketch2.addConstraint(Sketcher.Constraint("DistanceX", 7, 2, 7, 1, 0.5))
sketch2.addConstraint(Sketcher.Constraint("DistanceX", 20, 2, 20, 1, 0.8))
sketch2.addConstraint(Sketcher.Constraint("Distance", 0, 0.8))
sketch2.addConstraint(Sketcher.Constraint("Distance", 3, 0.5))
pad1 = doc.addObject("PartDesign::Pad", "Pad")
body.addObject(pad1)
pad1.Profile = sketch2
pad1.Length = 7.4

# Sketch on XZ plane
sketch3 = doc.addObject("Sketcher::SketchObject", "Sketch002")
body.addObject(sketch3)
sketch3.AttachmentSupport = (doc.XZ_Plane, [""])
sketch3.MapMode = "FlatFace"
sketch3.AttachmentOffset = App.Placement(V(0, 0, -8.9), App.Rotation())
sketch3.addGeometry(Part.Circle(V(0, 3.5, 0), V(0, 0, 1), 1.5), False)
sketch3.addConstraint(Sketcher.Constraint("PointOnObject", 0, 3, -2))
sketch3.addConstraint(Sketcher.Constraint("Diameter", 0, 3.0))
sketch3.addConstraint(Sketcher.Constraint("DistanceY", -1, 1, 0, 3, 3.55))
pocket1 = doc.addObject("PartDesign::Pocket", "Pocket")
body.addObject(pocket1)
pocket1.Profile = sketch3
pocket1.Length = 10
pocket1.Reversed = True
doc.recompute()

polarpattern = doc.addObject("PartDesign::PolarPattern", "PolarPattern")
body.addObject(polarpattern)
polarpattern.Originals = [pocket1]
polarpattern.Axis = (doc.Z_Axis, [""])
polarpattern.Angle = 270
polarpattern.Occurrences = 2
body.Tip = polarpattern

doc.recompute()
